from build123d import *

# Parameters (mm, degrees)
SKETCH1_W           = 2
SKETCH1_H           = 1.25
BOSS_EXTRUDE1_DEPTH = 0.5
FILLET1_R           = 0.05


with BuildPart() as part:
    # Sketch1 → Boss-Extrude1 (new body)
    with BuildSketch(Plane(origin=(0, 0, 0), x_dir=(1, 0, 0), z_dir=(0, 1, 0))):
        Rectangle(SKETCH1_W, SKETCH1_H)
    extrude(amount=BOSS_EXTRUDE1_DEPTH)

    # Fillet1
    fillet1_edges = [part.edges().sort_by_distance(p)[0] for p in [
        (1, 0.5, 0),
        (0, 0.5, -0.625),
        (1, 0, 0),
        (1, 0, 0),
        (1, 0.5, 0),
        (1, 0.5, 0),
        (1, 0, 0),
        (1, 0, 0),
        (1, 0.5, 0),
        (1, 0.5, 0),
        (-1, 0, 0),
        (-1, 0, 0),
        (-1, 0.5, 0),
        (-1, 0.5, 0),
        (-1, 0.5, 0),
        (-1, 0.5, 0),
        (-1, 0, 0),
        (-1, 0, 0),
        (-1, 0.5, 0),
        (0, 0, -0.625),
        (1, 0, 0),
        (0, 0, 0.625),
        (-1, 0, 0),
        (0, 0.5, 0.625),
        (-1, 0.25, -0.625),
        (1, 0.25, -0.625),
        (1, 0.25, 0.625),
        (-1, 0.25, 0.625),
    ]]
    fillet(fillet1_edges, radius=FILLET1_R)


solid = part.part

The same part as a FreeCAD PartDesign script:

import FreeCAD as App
import Part
import Sketcher
from FreeCAD import Vector

doc = App.newDocument("Part")
body = doc.addObject("PartDesign::Body", "Body")

# Sketch on XZ plane
sketch1 = body.newObject("Sketcher::SketchObject", "Sketch")
sketch1.AttachmentSupport = (doc.getObject("XZ_Plane"), [""])
sketch1.MapMode = "FlatFace"
sketch1.addGeometry([
    Part.LineSegment(Vector(-1, -0.6, 0), Vector(-1, 0.6, 0)),
    Part.LineSegment(Vector(-1, 0.6, 0), Vector(1, 0.6, 0)),
    Part.LineSegment(Vector(1, 0.6, 0), Vector(1, -0.6, 0)),
    Part.LineSegment(Vector(1, -0.6, 0), Vector(-1, -0.6, 0)),
], False)
sketch1.addConstraint([
    Sketcher.Constraint("Coincident", 0, 2, 1, 1),
    Sketcher.Constraint("Coincident", 1, 2, 2, 1),
    Sketcher.Constraint("Coincident", 2, 2, 3, 1),
    Sketcher.Constraint("Coincident", 3, 2, 0, 1),
    Sketcher.Constraint("Vertical", 0),
    Sketcher.Constraint("Horizontal", 1),
    Sketcher.Constraint("Vertical", 2),
    Sketcher.Constraint("Horizontal", 3),
    Sketcher.Constraint("Symmetric", 0, 2, 2, 2, -1, 1),
    Sketcher.Constraint("DistanceX", 1, 1, 1, 2, 2.0),
    Sketcher.Constraint("DistanceY", 0, 1, 0, 2, 1.25),
])
pad1 = body.newObject("PartDesign::Pad", "Pad")
pad1.Profile = sketch1
pad1.Length = 0.5
pad1.Reversed = True
doc.recompute()

fillet = body.newObject("PartDesign::Fillet", "Fillet")
fillet.Base = (pad1, ["Edge1"])
fillet.UseAllEdges = True
fillet.Radius = 0.05

doc.recompute()
